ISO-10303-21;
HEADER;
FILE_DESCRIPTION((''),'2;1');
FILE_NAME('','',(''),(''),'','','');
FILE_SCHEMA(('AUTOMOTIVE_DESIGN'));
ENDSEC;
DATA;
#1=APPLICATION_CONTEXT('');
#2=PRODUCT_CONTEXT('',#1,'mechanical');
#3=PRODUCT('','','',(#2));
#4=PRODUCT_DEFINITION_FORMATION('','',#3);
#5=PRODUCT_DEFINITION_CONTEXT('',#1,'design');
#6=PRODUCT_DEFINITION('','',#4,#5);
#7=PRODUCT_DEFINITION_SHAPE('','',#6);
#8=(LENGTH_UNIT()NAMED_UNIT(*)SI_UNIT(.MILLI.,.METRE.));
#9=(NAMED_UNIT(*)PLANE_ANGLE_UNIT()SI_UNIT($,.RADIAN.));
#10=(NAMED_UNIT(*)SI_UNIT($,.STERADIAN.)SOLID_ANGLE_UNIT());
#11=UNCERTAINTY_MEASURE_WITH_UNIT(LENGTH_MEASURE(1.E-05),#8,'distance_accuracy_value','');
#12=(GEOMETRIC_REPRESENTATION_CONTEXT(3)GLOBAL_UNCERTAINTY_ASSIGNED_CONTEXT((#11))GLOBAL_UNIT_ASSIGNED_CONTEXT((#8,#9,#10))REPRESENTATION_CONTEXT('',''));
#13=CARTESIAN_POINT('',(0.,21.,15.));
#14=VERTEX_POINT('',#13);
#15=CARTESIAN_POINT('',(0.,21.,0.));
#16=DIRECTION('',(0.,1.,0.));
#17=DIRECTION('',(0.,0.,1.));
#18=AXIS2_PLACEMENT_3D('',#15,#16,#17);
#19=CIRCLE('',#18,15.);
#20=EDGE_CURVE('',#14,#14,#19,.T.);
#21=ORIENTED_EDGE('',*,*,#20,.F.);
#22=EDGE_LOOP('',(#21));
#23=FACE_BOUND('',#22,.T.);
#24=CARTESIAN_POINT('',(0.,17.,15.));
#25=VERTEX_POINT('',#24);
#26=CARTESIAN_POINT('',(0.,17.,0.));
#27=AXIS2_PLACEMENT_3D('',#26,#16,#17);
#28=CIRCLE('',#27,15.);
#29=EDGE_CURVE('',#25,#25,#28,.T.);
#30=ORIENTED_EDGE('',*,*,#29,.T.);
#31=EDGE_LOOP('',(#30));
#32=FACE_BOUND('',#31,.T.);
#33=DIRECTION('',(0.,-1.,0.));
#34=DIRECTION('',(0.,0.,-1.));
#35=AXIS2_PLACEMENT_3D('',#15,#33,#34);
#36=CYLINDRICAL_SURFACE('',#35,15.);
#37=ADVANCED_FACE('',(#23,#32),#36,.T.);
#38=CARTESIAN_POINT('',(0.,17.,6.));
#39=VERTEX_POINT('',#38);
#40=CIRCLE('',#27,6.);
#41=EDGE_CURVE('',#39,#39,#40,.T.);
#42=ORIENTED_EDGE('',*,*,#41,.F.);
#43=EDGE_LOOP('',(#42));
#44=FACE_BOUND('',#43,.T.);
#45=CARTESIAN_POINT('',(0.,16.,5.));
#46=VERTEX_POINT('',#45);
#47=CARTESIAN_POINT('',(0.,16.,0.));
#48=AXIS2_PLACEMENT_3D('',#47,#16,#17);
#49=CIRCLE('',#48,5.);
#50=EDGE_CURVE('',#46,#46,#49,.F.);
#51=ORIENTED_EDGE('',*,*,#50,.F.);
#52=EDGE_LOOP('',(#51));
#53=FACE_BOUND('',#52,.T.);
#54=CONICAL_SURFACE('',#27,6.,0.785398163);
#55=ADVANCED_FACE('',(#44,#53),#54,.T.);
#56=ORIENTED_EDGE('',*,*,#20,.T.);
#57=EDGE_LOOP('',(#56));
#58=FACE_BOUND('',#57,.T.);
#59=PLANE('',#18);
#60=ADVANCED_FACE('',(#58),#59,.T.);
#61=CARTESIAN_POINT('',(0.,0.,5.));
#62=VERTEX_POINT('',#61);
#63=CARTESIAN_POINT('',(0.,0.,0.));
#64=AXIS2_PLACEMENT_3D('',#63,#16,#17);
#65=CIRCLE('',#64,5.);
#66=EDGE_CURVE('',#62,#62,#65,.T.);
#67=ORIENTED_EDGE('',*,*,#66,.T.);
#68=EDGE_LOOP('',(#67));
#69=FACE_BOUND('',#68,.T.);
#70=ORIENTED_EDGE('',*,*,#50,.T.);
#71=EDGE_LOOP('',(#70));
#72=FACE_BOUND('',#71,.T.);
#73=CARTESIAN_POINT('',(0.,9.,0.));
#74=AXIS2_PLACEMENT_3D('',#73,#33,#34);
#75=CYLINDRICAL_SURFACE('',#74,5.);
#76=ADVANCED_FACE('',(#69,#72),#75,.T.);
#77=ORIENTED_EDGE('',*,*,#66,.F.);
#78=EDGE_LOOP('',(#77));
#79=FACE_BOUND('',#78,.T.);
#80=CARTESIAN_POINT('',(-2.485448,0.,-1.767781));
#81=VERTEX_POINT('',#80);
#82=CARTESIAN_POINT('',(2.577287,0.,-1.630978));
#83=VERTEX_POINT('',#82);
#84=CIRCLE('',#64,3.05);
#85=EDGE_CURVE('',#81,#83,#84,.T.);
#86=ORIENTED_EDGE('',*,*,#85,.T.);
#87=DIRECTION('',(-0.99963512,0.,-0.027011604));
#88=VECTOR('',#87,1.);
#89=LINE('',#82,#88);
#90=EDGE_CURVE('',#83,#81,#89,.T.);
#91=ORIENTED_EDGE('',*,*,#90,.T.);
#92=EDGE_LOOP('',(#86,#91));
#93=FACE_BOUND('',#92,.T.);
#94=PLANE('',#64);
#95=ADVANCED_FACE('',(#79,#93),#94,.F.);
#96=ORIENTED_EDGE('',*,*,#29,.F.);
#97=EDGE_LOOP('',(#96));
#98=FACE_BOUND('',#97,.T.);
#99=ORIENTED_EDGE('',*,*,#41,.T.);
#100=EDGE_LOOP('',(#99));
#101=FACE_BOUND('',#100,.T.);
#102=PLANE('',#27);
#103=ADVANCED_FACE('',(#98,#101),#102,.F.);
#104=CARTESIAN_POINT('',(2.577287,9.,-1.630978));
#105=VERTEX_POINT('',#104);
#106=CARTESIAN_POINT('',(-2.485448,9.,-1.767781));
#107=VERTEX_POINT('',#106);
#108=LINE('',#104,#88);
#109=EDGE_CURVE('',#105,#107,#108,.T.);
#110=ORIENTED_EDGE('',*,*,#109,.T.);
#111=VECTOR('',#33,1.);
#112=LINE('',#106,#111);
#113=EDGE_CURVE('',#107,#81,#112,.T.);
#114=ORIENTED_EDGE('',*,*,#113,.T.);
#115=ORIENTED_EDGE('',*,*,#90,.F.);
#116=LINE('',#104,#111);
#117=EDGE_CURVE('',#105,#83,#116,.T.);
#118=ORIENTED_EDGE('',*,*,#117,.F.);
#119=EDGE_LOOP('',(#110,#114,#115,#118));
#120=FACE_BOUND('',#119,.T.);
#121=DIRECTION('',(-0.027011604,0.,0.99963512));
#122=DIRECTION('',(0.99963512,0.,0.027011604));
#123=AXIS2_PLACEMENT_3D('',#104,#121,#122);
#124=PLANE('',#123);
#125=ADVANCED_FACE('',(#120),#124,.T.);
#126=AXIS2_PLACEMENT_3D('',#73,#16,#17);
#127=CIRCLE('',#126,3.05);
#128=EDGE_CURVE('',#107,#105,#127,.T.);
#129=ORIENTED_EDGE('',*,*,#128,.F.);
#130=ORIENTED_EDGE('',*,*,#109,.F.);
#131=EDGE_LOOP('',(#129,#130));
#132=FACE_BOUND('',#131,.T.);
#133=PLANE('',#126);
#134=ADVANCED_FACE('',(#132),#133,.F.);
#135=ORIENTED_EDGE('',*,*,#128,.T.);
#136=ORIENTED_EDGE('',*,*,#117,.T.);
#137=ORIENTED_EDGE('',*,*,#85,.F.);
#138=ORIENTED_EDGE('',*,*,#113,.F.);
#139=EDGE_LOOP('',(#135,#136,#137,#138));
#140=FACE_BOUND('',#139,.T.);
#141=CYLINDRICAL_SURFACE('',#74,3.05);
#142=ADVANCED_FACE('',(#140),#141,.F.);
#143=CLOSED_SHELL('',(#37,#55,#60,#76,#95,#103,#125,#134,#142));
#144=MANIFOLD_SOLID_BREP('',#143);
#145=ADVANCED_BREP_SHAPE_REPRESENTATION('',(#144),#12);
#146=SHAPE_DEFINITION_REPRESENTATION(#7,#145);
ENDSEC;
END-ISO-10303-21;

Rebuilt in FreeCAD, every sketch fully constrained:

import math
import FreeCAD as App
import Part
import Sketcher


def edges_at(feature, points):
    """Names of the edges that pass closest to the given points."""
    edges = feature.Shape.Edges
    near = lambda p: min(range(len(edges)), key=lambda i: edges[i].distToShape(Part.Vertex(*p))[0])
    return sorted({f"Edge{near(p) + 1}" for p in points})

doc = App.newDocument("Part")
body = doc.addObject("PartDesign::Body", "Body")

sketch1 = doc.addObject("Sketcher::SketchObject", "Sketch")
body.addObject(sketch1)
sketch1.AttachmentSupport = (doc.XZ_Plane, [""])
sketch1.MapMode = "FlatFace"
sketch1.addGeometry([
    Part.Circle(App.Vector(0, 0, 0), App.Vector(0, 0, 1), 5),
    Part.LineSegment(App.Vector(-2.485448, -1.767781, 0), App.Vector(2.577287, -1.630978, 0)),
    Part.ArcOfCircle(Part.Circle(App.Vector(0, 0, 0), App.Vector(0, 0, 1), 3.05), math.radians(-32.326757), math.radians(215.422436)),
], False)
sketch1.addConstraint([
    Sketcher.Constraint("Coincident", 1, 1, 2, 2),
    Sketcher.Constraint("Coincident", 2, 1, 1, 2),
    Sketcher.Constraint("Coincident", 0, 3, -1, 1),
    Sketcher.Constraint("Coincident", 2, 3, -1, 1),
    Sketcher.Constraint("Diameter", 0, 10.0),
    Sketcher.Constraint("Radius", 2, 3.05),
    Sketcher.Constraint("DistanceY", 1, 1, -1, 1, 1.767781),
    Sketcher.Constraint("DistanceY", 2, 1, -1, 1, 1.630978),
])
pad1 = doc.addObject("PartDesign::Pad", "Pad")
body.addObject(pad1)
pad1.Profile = sketch1
pad1.Length = 9
pad1.Reversed = True

sketch2 = doc.addObject("Sketcher::SketchObject", "Sketch001")
body.addObject(sketch2)
sketch2.AttachmentSupport = (doc.XZ_Plane, [""])
sketch2.MapMode = "FlatFace"
sketch2.AttachmentOffset = App.Placement(App.Vector(0, 0, -9), App.Rotation())
sketch2.addGeometry(Part.Circle(App.Vector(0, 0, 0), App.Vector(0, 0, 1), 5), False)
sketch2.addConstraint([
    Sketcher.Constraint("Coincident", 0, 3, -1, 1),
    Sketcher.Constraint("Diameter", 0, 10.0),
])
pad2 = doc.addObject("PartDesign::Pad", "Pad001")
body.addObject(pad2)
pad2.Profile = sketch2
pad2.Length = 8
pad2.Reversed = True

sketch3 = doc.addObject("Sketcher::SketchObject", "Sketch002")
body.addObject(sketch3)
sketch3.AttachmentSupport = (doc.XZ_Plane, [""])
sketch3.MapMode = "FlatFace"
sketch3.AttachmentOffset = App.Placement(App.Vector(0, 0, -17), App.Rotation())
sketch3.addGeometry(Part.Circle(App.Vector(0, 0, 0), App.Vector(0, 0, 1), 15), False)
sketch3.addConstraint([
    Sketcher.Constraint("Coincident", 0, 3, -1, 1),
    Sketcher.Constraint("Diameter", 0, 30.0),
])
pad3 = doc.addObject("PartDesign::Pad", "Pad002")
body.addObject(pad3)
pad3.Profile = sketch3
pad3.Length = 4
pad3.Reversed = True
doc.recompute()

chamfer = doc.addObject("PartDesign::Chamfer", "Chamfer")
body.addObject(chamfer)
chamfer.Base = (pad3, edges_at(pad3, [(0, 17, -5)]))
chamfer.Size = 1

doc.recompute()
